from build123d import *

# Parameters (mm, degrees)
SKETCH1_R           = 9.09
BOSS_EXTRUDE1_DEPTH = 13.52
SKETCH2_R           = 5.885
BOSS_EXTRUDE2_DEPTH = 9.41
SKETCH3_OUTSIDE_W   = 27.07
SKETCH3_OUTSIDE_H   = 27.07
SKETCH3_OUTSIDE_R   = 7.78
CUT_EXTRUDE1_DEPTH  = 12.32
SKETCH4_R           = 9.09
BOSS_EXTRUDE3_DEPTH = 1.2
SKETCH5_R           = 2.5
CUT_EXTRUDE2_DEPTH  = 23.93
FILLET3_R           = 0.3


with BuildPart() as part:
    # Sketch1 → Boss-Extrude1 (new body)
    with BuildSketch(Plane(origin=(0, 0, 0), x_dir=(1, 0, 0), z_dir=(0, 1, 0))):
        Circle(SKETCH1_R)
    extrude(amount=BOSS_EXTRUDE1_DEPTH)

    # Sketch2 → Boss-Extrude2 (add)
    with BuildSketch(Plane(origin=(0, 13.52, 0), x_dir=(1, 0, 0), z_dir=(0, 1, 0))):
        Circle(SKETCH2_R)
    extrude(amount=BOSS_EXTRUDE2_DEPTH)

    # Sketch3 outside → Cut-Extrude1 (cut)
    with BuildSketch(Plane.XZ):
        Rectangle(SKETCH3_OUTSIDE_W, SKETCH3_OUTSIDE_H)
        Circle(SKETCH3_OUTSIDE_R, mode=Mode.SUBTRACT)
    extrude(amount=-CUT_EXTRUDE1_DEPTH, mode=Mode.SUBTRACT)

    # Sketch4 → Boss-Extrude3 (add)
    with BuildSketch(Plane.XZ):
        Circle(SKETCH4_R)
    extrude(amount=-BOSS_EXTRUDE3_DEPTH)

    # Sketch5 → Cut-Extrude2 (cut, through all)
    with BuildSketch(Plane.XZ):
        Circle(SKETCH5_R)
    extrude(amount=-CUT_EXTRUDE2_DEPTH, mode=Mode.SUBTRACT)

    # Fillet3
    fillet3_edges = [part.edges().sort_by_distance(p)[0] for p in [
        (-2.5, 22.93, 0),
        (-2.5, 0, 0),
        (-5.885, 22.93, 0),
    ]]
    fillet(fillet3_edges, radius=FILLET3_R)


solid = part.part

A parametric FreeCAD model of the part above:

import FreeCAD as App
import Part
import Sketcher
Q = App.Units.Quantity


def edges_at(feature, points):
    """Names of the edges that pass closest to the given points."""
    edges = feature.Shape.Edges
    near = lambda p: min(range(len(edges)), key=lambda i: edges[i].distToShape(Part.Vertex(*p))[0])
    return sorted({f"Edge{near(p) + 1}" for p in points})

doc = App.newDocument("Part")
params = doc.addObject("Spreadsheet::Sheet", "Params")
for row, (alias, value) in enumerate([
    ("sketch1_diameter", "18.18 mm"),
    ("pad1_length", "13.52 mm"),
    ("sketch2_diameter", "11.77 mm"),
    ("pad2_length", "9.41 mm"),
    ("sketch3_diameter", "15.56 mm"),
    ("sketch3_width", "27.07 mm"),
    ("pocket1_length", "12.32 mm"),
    ("sketch4_diameter", "18.18 mm"),
    ("pad3_length", "1.2 mm"),
    ("sketch5_diameter", "5 mm"),
    ("fillet_radius", "0.3 mm"),
], start=1):
    params.set(f"A{row}", alias)
    params.set(f"B{row}", "=" + value)
    params.setAlias(f"B{row}", alias)

body = doc.addObject("PartDesign::Body", "Body")

sketch1 = body.newObject("Sketcher::SketchObject", "Sketch")
sketch1.AttachmentSupport = (doc.getObject("XZ_Plane"), [""])
sketch1.MapMode = "FlatFace"
sketch1.addGeometry(Part.Circle(App.Vector(0, 0, 0), App.Vector(0, 0, 1), 9), False)
sketch1.addConstraint([
    Sketcher.Constraint("Coincident", 0, 3, -1, 1),
    Sketcher.Constraint("Diameter", 0, Q("18.18 mm")),
])
sketch1.setExpression("Constraints[1]", "Params.sketch1_diameter")
pad1 = body.newObject("PartDesign::Pad", "Pad")
pad1.Profile = sketch1
pad1.setExpression("Length", "Params.pad1_length")
pad1.Reversed = True

sketch2 = body.newObject("Sketcher::SketchObject", "Sketch001")
sketch2.AttachmentSupport = (doc.getObject("XZ_Plane"), [""])
sketch2.MapMode = "FlatFace"
sketch2.AttachmentOffset = App.Placement(App.Vector(0, 0, -13.52), App.Rotation())
sketch2.addGeometry(Part.Circle(App.Vector(0, 0, 0), App.Vector(0, 0, 1), 6), False)
sketch2.addConstraint([
    Sketcher.Constraint("Coincident", 0, 3, -1, 1),
    Sketcher.Constraint("Diameter", 0, Q("11.77 mm")),
])
sketch2.setExpression("Constraints[1]", "Params.sketch2_diameter")
pad2 = body.newObject("PartDesign::Pad", "Pad001")
pad2.Profile = sketch2
pad2.setExpression("Length", "Params.pad2_length")
pad2.Reversed = True

sketch3 = body.newObject("Sketcher::SketchObject", "Sketch002")
sketch3.AttachmentSupport = (doc.getObject("XZ_Plane"), [""])
sketch3.MapMode = "FlatFace"
sketch3.addGeometry([
    Part.LineSegment(App.Vector(-14, 14, 0), App.Vector(-14, -14, 0)),
    Part.LineSegment(App.Vector(-14, -14, 0), App.Vector(14, -14, 0)),
    Part.LineSegment(App.Vector(14, -14, 0), App.Vector(14, 14, 0)),
    Part.LineSegment(App.Vector(14, 14, 0), App.Vector(-14, 14, 0)),
    Part.Circle(App.Vector(0, 0, 0), App.Vector(0, 0, 1), 8),
], False)
sketch3.addConstraint([
    Sketcher.Constraint("Coincident", 0, 2, 1, 1),
    Sketcher.Constraint("Coincident", 1, 2, 2, 1),
    Sketcher.Constraint("Coincident", 2, 2, 3, 1),
    Sketcher.Constraint("Coincident", 3, 2, 0, 1),
    Sketcher.Constraint("Vertical", 0),
    Sketcher.Constraint("Horizontal", 1),
    Sketcher.Constraint("Vertical", 2),
    Sketcher.Constraint("Horizontal", 3),
    Sketcher.Constraint("Coincident", 4, 3, -1, 1),
    Sketcher.Constraint("Symmetric", 0, 2, 2, 2, -1, 1),
    Sketcher.Constraint("Equal", 3, 0),
    Sketcher.Constraint("Diameter", 4, Q("15.56 mm")),
    Sketcher.Constraint("DistanceX", 1, 1, 1, 2, Q("27.07 mm")),
])
sketch3.setExpression("Constraints[11]", "Params.sketch3_diameter")
sketch3.setExpression("Constraints[12]", "Params.sketch3_width")
pocket1 = body.newObject("PartDesign::Pocket", "Pocket")
pocket1.Profile = sketch3
pocket1.setExpression("Length", "Params.pocket1_length")

sketch4 = body.newObject("Sketcher::SketchObject", "Sketch003")
sketch4.AttachmentSupport = (doc.getObject("XZ_Plane"), [""])
sketch4.MapMode = "FlatFace"
sketch4.addGeometry(Part.Circle(App.Vector(0, 0, 0), App.Vector(0, 0, 1), 9), False)
sketch4.addConstraint([
    Sketcher.Constraint("Coincident", 0, 3, -1, 1),
    Sketcher.Constraint("Diameter", 0, Q("18.18 mm")),
])
sketch4.setExpression("Constraints[1]", "Params.sketch4_diameter")
pad3 = body.newObject("PartDesign::Pad", "Pad002")
pad3.Profile = sketch4
pad3.setExpression("Length", "Params.pad3_length")
pad3.Reversed = True

sketch5 = body.newObject("Sketcher::SketchObject", "Sketch004")
sketch5.AttachmentSupport = (doc.getObject("XZ_Plane"), [""])
sketch5.MapMode = "FlatFace"
sketch5.addGeometry(Part.Circle(App.Vector(0, 0, 0), App.Vector(0, 0, 1), 2.5), False)
sketch5.addConstraint([
    Sketcher.Constraint("Coincident", 0, 3, -1, 1),
    Sketcher.Constraint("Diameter", 0, Q("5 mm")),
])
sketch5.setExpression("Constraints[1]", "Params.sketch5_diameter")
pocket2 = body.newObject("PartDesign::Pocket", "Pocket001")
pocket2.Profile = sketch5
pocket2.Type = "ThroughAll"
doc.recompute()

fillet = body.newObject("PartDesign::Fillet", "Fillet")
fillet.Base = (pocket2, edges_at(pocket2, [(-2.5, 22.93, 0), (-2.5, 0, 0), (-5.885, 22.93, 0)]))
fillet.setExpression("Radius", "Params.fillet_radius")

doc.recompute()
